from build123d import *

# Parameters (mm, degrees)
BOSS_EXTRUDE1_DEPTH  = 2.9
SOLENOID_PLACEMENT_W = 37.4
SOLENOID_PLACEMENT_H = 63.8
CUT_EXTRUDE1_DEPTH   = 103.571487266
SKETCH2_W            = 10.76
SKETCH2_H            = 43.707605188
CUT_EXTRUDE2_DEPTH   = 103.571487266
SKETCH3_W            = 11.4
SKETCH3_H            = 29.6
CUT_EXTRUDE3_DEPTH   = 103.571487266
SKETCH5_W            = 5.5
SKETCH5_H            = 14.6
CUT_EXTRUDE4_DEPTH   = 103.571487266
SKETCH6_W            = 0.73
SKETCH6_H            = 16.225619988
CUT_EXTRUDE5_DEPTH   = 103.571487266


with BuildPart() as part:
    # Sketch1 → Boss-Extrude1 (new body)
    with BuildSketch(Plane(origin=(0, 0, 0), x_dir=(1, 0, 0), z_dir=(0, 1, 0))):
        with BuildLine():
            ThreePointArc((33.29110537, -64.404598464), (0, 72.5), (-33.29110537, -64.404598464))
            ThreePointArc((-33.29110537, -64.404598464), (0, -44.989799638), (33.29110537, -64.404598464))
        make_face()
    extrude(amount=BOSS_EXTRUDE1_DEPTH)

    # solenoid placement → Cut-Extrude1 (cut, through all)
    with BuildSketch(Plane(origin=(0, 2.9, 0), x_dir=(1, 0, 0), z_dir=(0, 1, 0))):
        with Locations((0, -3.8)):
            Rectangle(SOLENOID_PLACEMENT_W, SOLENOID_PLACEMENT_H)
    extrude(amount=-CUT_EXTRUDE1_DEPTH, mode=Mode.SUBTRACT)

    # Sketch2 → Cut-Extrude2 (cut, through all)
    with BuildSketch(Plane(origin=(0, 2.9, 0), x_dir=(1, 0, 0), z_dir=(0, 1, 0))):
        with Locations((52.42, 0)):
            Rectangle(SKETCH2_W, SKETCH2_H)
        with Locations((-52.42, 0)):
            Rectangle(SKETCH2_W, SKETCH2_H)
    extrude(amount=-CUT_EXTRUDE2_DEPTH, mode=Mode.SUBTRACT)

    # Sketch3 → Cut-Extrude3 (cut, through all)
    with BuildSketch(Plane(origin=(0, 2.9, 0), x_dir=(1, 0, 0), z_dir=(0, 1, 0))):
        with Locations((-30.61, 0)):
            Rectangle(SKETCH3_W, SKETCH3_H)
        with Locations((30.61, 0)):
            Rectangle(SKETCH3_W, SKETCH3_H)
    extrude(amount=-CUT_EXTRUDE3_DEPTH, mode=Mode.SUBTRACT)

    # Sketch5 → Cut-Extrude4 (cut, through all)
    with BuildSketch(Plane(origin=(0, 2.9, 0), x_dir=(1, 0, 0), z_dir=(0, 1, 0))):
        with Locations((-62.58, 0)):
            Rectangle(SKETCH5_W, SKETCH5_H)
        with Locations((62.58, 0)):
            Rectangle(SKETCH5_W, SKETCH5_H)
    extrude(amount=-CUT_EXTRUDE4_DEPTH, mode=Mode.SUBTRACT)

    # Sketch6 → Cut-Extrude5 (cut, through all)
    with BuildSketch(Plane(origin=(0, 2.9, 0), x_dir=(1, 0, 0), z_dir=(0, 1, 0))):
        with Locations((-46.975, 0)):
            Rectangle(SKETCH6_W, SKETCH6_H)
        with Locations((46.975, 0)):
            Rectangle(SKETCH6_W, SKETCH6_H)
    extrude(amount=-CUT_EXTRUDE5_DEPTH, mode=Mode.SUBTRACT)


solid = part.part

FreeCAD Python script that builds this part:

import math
import FreeCAD as App
import Part
import Sketcher

V = App.Vector

doc = App.newDocument("Part")
body = doc.addObject("PartDesign::Body", "Body")

# Sketch on XZ plane
sketch1 = body.newObject("Sketcher::SketchObject", "Sketch")
sketch1.AttachmentSupport = (doc.getObject("XZ_Plane"), [""])
sketch1.MapMode = "FlatFace"
sketch1.addGeometry(Part.ArcOfCircle(Part.Circle(V(0, 0, 0), V(0, 0, 1), 72), math.radians(117), math.radians(423)), False)
sketch1.addGeometry(Part.ArcOfCircle(Part.Circle(V(0, 83, 0), V(0, 0, 1), 38), math.radians(-150), math.radians(-30)), False)
sketch1.addConstraint(Sketcher.Constraint("Coincident", 0, 1, 1, 1))
sketch1.addConstraint(Sketcher.Constraint("Coincident", 1, 2, 0, 2))
sketch1.addConstraint(Sketcher.Constraint("Coincident", 0, 3, -1, 1))
sketch1.addConstraint(Sketcher.Constraint("PointOnObject", 1, 3, -2))
sketch1.addConstraint(Sketcher.Constraint("Radius", 0, 72.5))
sketch1.addConstraint(Sketcher.Constraint("Radius", 1, 38.25))
sketch1.addConstraint(Sketcher.Constraint("DistanceY", -1, 1, 1, 3, 83.2398))
pad1 = body.newObject("PartDesign::Pad", "Pad")
pad1.Profile = sketch1
pad1.Length = 2.9
pad1.Reversed = True

# Sketch on XZ plane
sketch2 = body.newObject("Sketcher::SketchObject", "Sketch001")
sketch2.AttachmentSupport = (doc.getObject("XZ_Plane"), [""])
sketch2.MapMode = "FlatFace"
sketch2.AttachmentOffset = App.Placement(V(0, 0, -2.9), App.Rotation())
sketch2.addGeometry(Part.LineSegment(V(-19, -28, 0), V(-19, 36, 0)), False)
sketch2.addGeometry(Part.LineSegment(V(-19, 36, 0), V(19, 36, 0)), False)
sketch2.addGeometry(Part.LineSegment(V(19, 36, 0), V(19, -28, 0)), False)
sketch2.addGeometry(Part.LineSegment(V(19, -28, 0), V(-19, -28, 0)), False)
sketch2.addConstraint(Sketcher.Constraint("Coincident", 0, 2, 1, 1))
sketch2.addConstraint(Sketcher.Constraint("Coincident", 1, 2, 2, 1))
sketch2.addConstraint(Sketcher.Constraint("Coincident", 2, 2, 3, 1))
sketch2.addConstraint(Sketcher.Constraint("Coincident", 3, 2, 0, 1))
sketch2.addConstraint(Sketcher.Constraint("Vertical", 0))
sketch2.addConstraint(Sketcher.Constraint("Horizontal", 1))
sketch2.addConstraint(Sketcher.Constraint("Vertical", 2))
sketch2.addConstraint(Sketcher.Constraint("Horizontal", 3))
sketch2.addConstraint(Sketcher.Constraint("DistanceX", 1, 1, 1, 2, 37.4))
sketch2.addConstraint(Sketcher.Constraint("DistanceY", 0, 1, 0, 2, 63.8))
sketch2.addConstraint(Sketcher.Constraint("DistanceX", 0, 2, -1, 1, 18.7))
sketch2.addConstraint(Sketcher.Constraint("DistanceY", -1, 1, 0, 2, 35.7))
pocket1 = body.newObject("PartDesign::Pocket", "Pocket")
pocket1.Profile = sketch2
pocket1.Type = "ThroughAll"
pocket1.Reversed = True

# Sketch on XZ plane
sketch3 = body.newObject("Sketcher::SketchObject", "Sketch002")
sketch3.AttachmentSupport = (doc.getObject("XZ_Plane"), [""])
sketch3.MapMode = "FlatFace"
sketch3.AttachmentOffset = App.Placement(V(0, 0, -2.9), App.Rotation())
sketch3.addGeometry(Part.LineSegment(V(47, -22, 0), V(47, 22, 0)), False)
sketch3.addGeometry(Part.LineSegment(V(47, 22, 0), V(58, 22, 0)), False)
sketch3.addGeometry(Part.LineSegment(V(58, 22, 0), V(58, -22, 0)), False)
sketch3.addGeometry(Part.LineSegment(V(58, -22, 0), V(47, -22, 0)), False)
sketch3.addGeometry(Part.LineSegment(V(-58, -22, 0), V(-58, 22, 0)), False)
sketch3.addGeometry(Part.LineSegment(V(-58, 22, 0), V(-47, 22, 0)), False)
sketch3.addGeometry(Part.LineSegment(V(-47, 22, 0), V(-47, -22, 0)), False)
sketch3.addGeometry(Part.LineSegment(V(-47, -22, 0), V(-58, -22, 0)), False)
sketch3.addConstraint(Sketcher.Constraint("Coincident", 0, 2, 1, 1))
sketch3.addConstraint(Sketcher.Constraint("Coincident", 1, 2, 2, 1))
sketch3.addConstraint(Sketcher.Constraint("Coincident", 2, 2, 3, 1))
sketch3.addConstraint(Sketcher.Constraint("Coincident", 3, 2, 0, 1))
sketch3.addConstraint(Sketcher.Constraint("Coincident", 4, 2, 5, 1))
sketch3.addConstraint(Sketcher.Constraint("Coincident", 5, 2, 6, 1))
sketch3.addConstraint(Sketcher.Constraint("Coincident", 6, 2, 7, 1))
sketch3.addConstraint(Sketcher.Constraint("Coincident", 7, 2, 4, 1))
sketch3.addConstraint(Sketcher.Constraint("Vertical", 0))
sketch3.addConstraint(Sketcher.Constraint("Horizontal", 1))
sketch3.addConstraint(Sketcher.Constraint("Vertical", 2))
sketch3.addConstraint(Sketcher.Constraint("Horizontal", 3))
sketch3.addConstraint(Sketcher.Constraint("Vertical", 4))
sketch3.addConstraint(Sketcher.Constraint("Horizontal", 5))
sketch3.addConstraint(Sketcher.Constraint("Vertical", 6))
sketch3.addConstraint(Sketcher.Constraint("Horizontal", 7))
sketch3.addConstraint(Sketcher.Constraint("Symmetric", 2, 2, 4, 2, -1, 1))
sketch3.addConstraint(Sketcher.Constraint("Symmetric", 0, 2, 6, 2, -1, 1))
sketch3.addConstraint(Sketcher.Constraint("Horizontal", 1, 2, 4, 2))
sketch3.addConstraint(Sketcher.Constraint("DistanceX", 1, 1, 1, 2, 10.76))
sketch3.addConstraint(Sketcher.Constraint("DistanceX", -1, 1, 1, 2, 57.8))
sketch3.addConstraint(Sketcher.Constraint("DistanceY", 0, 1, 0, 2, 43.707605))
pocket2 = body.newObject("PartDesign::Pocket", "Pocket001")
pocket2.Profile = sketch3
pocket2.Type = "ThroughAll"
pocket2.Reversed = True

# Sketch on XZ plane
sketch4 = body.newObject("Sketcher::SketchObject", "Sketch003")
sketch4.AttachmentSupport = (doc.getObject("XZ_Plane"), [""])
sketch4.MapMode = "FlatFace"
sketch4.AttachmentOffset = App.Placement(V(0, 0, -2.9), App.Rotation())
sketch4.addGeometry(Part.LineSegment(V(-36, -15, 0), V(-36, 15, 0)), False)
sketch4.addGeometry(Part.LineSegment(V(-36, 15, 0), V(-25, 15, 0)), False)
sketch4.addGeometry(Part.LineSegment(V(-25, 15, 0), V(-25, -15, 0)), False)
sketch4.addGeometry(Part.LineSegment(V(-25, -15, 0), V(-36, -15, 0)), False)
sketch4.addGeometry(Part.LineSegment(V(25, -15, 0), V(25, 15, 0)), False)
sketch4.addGeometry(Part.LineSegment(V(25, 15, 0), V(36, 15, 0)), False)
sketch4.addGeometry(Part.LineSegment(V(36, 15, 0), V(36, -15, 0)), False)
sketch4.addGeometry(Part.LineSegment(V(36, -15, 0), V(25, -15, 0)), False)
sketch4.addConstraint(Sketcher.Constraint("Coincident", 0, 2, 1, 1))
sketch4.addConstraint(Sketcher.Constraint("Coincident", 1, 2, 2, 1))
sketch4.addConstraint(Sketcher.Constraint("Coincident", 2, 2, 3, 1))
sketch4.addConstraint(Sketcher.Constraint("Coincident", 3, 2, 0, 1))
sketch4.addConstraint(Sketcher.Constraint("Coincident", 4, 2, 5, 1))
sketch4.addConstraint(Sketcher.Constraint("Coincident", 5, 2, 6, 1))
sketch4.addConstraint(Sketcher.Constraint("Coincident", 6, 2, 7, 1))
sketch4.addConstraint(Sketcher.Constraint("Coincident", 7, 2, 4, 1))
sketch4.addConstraint(Sketcher.Constraint("Vertical", 0))
sketch4.addConstraint(Sketcher.Constraint("Horizontal", 1))
sketch4.addConstraint(Sketcher.Constraint("Vertical", 2))
sketch4.addConstraint(Sketcher.Constraint("Horizontal", 3))
sketch4.addConstraint(Sketcher.Constraint("Vertical", 4))
sketch4.addConstraint(Sketcher.Constraint("Horizontal", 5))
sketch4.addConstraint(Sketcher.Constraint("Vertical", 6))
sketch4.addConstraint(Sketcher.Constraint("Horizontal", 7))
sketch4.addConstraint(Sketcher.Constraint("Symmetric", 2, 2, 4, 2, -1, 1))
sketch4.addConstraint(Sketcher.Constraint("Symmetric", 0, 2, 6, 2, -1, 1))
sketch4.addConstraint(Sketcher.Constraint("Horizontal", 1, 2, 4, 2))
sketch4.addConstraint(Sketcher.Constraint("DistanceX", 1, 1, 1, 2, 11.4))
sketch4.addConstraint(Sketcher.Constraint("DistanceY", 0, 1, 0, 2, 29.6))
sketch4.addConstraint(Sketcher.Constraint("DistanceX", 0, 2, -1, 1, 36.31))
pocket3 = body.newObject("PartDesign::Pocket", "Pocket002")
pocket3.Profile = sketch4
pocket3.Type = "ThroughAll"
pocket3.Reversed = True

# Sketch on XZ plane
sketch5 = body.newObject("Sketcher::SketchObject", "Sketch004")
sketch5.AttachmentSupport = (doc.getObject("XZ_Plane"), [""])
sketch5.MapMode = "FlatFace"
sketch5.AttachmentOffset = App.Placement(V(0, 0, -2.9), App.Rotation())
sketch5.addGeometry(Part.LineSegment(V(-65, -7, 0), V(-65, 7, 0)), False)
sketch5.addGeometry(Part.LineSegment(V(-65, 7, 0), V(-60, 7, 0)), False)
sketch5.addGeometry(Part.LineSegment(V(-60, 7, 0), V(-60, -7, 0)), False)
sketch5.addGeometry(Part.LineSegment(V(-60, -7, 0), V(-65, -7, 0)), False)
sketch5.addGeometry(Part.LineSegment(V(60, -7, 0), V(60, 7, 0)), False)
sketch5.addGeometry(Part.LineSegment(V(60, 7, 0), V(65, 7, 0)), False)
sketch5.addGeometry(Part.LineSegment(V(65, 7, 0), V(65, -7, 0)), False)
sketch5.addGeometry(Part.LineSegment(V(65, -7, 0), V(60, -7, 0)), False)
sketch5.addConstraint(Sketcher.Constraint("Coincident", 0, 2, 1, 1))
sketch5.addConstraint(Sketcher.Constraint("Coincident", 1, 2, 2, 1))
sketch5.addConstraint(Sketcher.Constraint("Coincident", 2, 2, 3, 1))
sketch5.addConstraint(Sketcher.Constraint("Coincident", 3, 2, 0, 1))
sketch5.addConstraint(Sketcher.Constraint("Coincident", 4, 2, 5, 1))
sketch5.addConstraint(Sketcher.Constraint("Coincident", 5, 2, 6, 1))
sketch5.addConstraint(Sketcher.Constraint("Coincident", 6, 2, 7, 1))
sketch5.addConstraint(Sketcher.Constraint("Coincident", 7, 2, 4, 1))
sketch5.addConstraint(Sketcher.Constraint("Vertical", 0))
sketch5.addConstraint(Sketcher.Constraint("Horizontal", 1))
sketch5.addConstraint(Sketcher.Constraint("Vertical", 2))
sketch5.addConstraint(Sketcher.Constraint("Horizontal", 3))
sketch5.addConstraint(Sketcher.Constraint("Vertical", 4))
sketch5.addConstraint(Sketcher.Constraint("Horizontal", 5))
sketch5.addConstraint(Sketcher.Constraint("Vertical", 6))
sketch5.addConstraint(Sketcher.Constraint("Horizontal", 7))
sketch5.addConstraint(Sketcher.Constraint("Symmetric", 2, 2, 4, 2, -1, 1))
sketch5.addConstraint(Sketcher.Constraint("Symmetric", 0, 2, 6, 2, -1, 1))
sketch5.addConstraint(Sketcher.Constraint("Horizontal", 1, 2, 4, 2))
sketch5.addConstraint(Sketcher.Constraint("DistanceX", 1, 1, 1, 2, 5.5))
sketch5.addConstraint(Sketcher.Constraint("DistanceY", 0, 1, 0, 2, 14.6))
sketch5.addConstraint(Sketcher.Constraint("DistanceX", 0, 2, -1, 1, 65.33))
pocket4 = body.newObject("PartDesign::Pocket", "Pocket003")
pocket4.Profile = sketch5
pocket4.Type = "ThroughAll"
pocket4.Reversed = True

# Sketch on XZ plane
sketch6 = body.newObject("Sketcher::SketchObject", "Sketch005")
sketch6.AttachmentSupport = (doc.getObject("XZ_Plane"), [""])
sketch6.MapMode = "FlatFace"
sketch6.AttachmentOffset = App.Placement(V(0, 0, -2.9), App.Rotation())
sketch6.addGeometry(Part.LineSegment(V(-47.3, -8.1, 0), V(-47.3, 8.1, 0)), False)
sketch6.addGeometry(Part.LineSegment(V(-47.3, 8.1, 0), V(-46.6, 8.1, 0)), False)
sketch6.addGeometry(Part.LineSegment(V(-46.6, 8.1, 0), V(-46.6, -8.1, 0)), False)
sketch6.addGeometry(Part.LineSegment(V(-46.6, -8.1, 0), V(-47.3, -8.1, 0)), False)
sketch6.addGeometry(Part.LineSegment(V(46.6, -8.1, 0), V(46.6, 8.1, 0)), False)
sketch6.addGeometry(Part.LineSegment(V(46.6, 8.1, 0), V(47.3, 8.1, 0)), False)
sketch6.addGeometry(Part.LineSegment(V(47.3, 8.1, 0), V(47.3, -8.1, 0)), False)
sketch6.addGeometry(Part.LineSegment(V(47.3, -8.1, 0), V(46.6, -8.1, 0)), False)
sketch6.addConstraint(Sketcher.Constraint("Coincident", 0, 2, 1, 1))
sketch6.addConstraint(Sketcher.Constraint("Coincident", 1, 2, 2, 1))
sketch6.addConstraint(Sketcher.Constraint("Coincident", 2, 2, 3, 1))
sketch6.addConstraint(Sketcher.Constraint("Coincident", 3, 2, 0, 1))
sketch6.addConstraint(Sketcher.Constraint("Coincident", 4, 2, 5, 1))
sketch6.addConstraint(Sketcher.Constraint("Coincident", 5, 2, 6, 1))
sketch6.addConstraint(Sketcher.Constraint("Coincident", 6, 2, 7, 1))
sketch6.addConstraint(Sketcher.Constraint("Coincident", 7, 2, 4, 1))
sketch6.addConstraint(Sketcher.Constraint("Vertical", 0))
sketch6.addConstraint(Sketcher.Constraint("Horizontal", 1))
sketch6.addConstraint(Sketcher.Constraint("Vertical", 2))
sketch6.addConstraint(Sketcher.Constraint("Horizontal", 3))
sketch6.addConstraint(Sketcher.Constraint("Vertical", 4))
sketch6.addConstraint(Sketcher.Constraint("Horizontal", 5))
sketch6.addConstraint(Sketcher.Constraint("Vertical", 6))
sketch6.addConstraint(Sketcher.Constraint("Horizontal", 7))
sketch6.addConstraint(Sketcher.Constraint("Symmetric", 2, 2, 4, 2, -1, 1))
sketch6.addConstraint(Sketcher.Constraint("Symmetric", 0, 2, 6, 2, -1, 1))
sketch6.addConstraint(Sketcher.Constraint("Horizontal", 1, 2, 4, 2))
sketch6.addConstraint(Sketcher.Constraint("DistanceX", 1, 1, 1, 2, 0.73))
sketch6.addConstraint(Sketcher.Constraint("DistanceX", 0, 2, -1, 1, 47.34))
sketch6.addConstraint(Sketcher.Constraint("DistanceY", 0, 1, 0, 2, 16.22562))
pocket5 = body.newObject("PartDesign::Pocket", "Pocket004")
pocket5.Profile = sketch6
pocket5.Type = "ThroughAll"
pocket5.Reversed = True

doc.recompute()
